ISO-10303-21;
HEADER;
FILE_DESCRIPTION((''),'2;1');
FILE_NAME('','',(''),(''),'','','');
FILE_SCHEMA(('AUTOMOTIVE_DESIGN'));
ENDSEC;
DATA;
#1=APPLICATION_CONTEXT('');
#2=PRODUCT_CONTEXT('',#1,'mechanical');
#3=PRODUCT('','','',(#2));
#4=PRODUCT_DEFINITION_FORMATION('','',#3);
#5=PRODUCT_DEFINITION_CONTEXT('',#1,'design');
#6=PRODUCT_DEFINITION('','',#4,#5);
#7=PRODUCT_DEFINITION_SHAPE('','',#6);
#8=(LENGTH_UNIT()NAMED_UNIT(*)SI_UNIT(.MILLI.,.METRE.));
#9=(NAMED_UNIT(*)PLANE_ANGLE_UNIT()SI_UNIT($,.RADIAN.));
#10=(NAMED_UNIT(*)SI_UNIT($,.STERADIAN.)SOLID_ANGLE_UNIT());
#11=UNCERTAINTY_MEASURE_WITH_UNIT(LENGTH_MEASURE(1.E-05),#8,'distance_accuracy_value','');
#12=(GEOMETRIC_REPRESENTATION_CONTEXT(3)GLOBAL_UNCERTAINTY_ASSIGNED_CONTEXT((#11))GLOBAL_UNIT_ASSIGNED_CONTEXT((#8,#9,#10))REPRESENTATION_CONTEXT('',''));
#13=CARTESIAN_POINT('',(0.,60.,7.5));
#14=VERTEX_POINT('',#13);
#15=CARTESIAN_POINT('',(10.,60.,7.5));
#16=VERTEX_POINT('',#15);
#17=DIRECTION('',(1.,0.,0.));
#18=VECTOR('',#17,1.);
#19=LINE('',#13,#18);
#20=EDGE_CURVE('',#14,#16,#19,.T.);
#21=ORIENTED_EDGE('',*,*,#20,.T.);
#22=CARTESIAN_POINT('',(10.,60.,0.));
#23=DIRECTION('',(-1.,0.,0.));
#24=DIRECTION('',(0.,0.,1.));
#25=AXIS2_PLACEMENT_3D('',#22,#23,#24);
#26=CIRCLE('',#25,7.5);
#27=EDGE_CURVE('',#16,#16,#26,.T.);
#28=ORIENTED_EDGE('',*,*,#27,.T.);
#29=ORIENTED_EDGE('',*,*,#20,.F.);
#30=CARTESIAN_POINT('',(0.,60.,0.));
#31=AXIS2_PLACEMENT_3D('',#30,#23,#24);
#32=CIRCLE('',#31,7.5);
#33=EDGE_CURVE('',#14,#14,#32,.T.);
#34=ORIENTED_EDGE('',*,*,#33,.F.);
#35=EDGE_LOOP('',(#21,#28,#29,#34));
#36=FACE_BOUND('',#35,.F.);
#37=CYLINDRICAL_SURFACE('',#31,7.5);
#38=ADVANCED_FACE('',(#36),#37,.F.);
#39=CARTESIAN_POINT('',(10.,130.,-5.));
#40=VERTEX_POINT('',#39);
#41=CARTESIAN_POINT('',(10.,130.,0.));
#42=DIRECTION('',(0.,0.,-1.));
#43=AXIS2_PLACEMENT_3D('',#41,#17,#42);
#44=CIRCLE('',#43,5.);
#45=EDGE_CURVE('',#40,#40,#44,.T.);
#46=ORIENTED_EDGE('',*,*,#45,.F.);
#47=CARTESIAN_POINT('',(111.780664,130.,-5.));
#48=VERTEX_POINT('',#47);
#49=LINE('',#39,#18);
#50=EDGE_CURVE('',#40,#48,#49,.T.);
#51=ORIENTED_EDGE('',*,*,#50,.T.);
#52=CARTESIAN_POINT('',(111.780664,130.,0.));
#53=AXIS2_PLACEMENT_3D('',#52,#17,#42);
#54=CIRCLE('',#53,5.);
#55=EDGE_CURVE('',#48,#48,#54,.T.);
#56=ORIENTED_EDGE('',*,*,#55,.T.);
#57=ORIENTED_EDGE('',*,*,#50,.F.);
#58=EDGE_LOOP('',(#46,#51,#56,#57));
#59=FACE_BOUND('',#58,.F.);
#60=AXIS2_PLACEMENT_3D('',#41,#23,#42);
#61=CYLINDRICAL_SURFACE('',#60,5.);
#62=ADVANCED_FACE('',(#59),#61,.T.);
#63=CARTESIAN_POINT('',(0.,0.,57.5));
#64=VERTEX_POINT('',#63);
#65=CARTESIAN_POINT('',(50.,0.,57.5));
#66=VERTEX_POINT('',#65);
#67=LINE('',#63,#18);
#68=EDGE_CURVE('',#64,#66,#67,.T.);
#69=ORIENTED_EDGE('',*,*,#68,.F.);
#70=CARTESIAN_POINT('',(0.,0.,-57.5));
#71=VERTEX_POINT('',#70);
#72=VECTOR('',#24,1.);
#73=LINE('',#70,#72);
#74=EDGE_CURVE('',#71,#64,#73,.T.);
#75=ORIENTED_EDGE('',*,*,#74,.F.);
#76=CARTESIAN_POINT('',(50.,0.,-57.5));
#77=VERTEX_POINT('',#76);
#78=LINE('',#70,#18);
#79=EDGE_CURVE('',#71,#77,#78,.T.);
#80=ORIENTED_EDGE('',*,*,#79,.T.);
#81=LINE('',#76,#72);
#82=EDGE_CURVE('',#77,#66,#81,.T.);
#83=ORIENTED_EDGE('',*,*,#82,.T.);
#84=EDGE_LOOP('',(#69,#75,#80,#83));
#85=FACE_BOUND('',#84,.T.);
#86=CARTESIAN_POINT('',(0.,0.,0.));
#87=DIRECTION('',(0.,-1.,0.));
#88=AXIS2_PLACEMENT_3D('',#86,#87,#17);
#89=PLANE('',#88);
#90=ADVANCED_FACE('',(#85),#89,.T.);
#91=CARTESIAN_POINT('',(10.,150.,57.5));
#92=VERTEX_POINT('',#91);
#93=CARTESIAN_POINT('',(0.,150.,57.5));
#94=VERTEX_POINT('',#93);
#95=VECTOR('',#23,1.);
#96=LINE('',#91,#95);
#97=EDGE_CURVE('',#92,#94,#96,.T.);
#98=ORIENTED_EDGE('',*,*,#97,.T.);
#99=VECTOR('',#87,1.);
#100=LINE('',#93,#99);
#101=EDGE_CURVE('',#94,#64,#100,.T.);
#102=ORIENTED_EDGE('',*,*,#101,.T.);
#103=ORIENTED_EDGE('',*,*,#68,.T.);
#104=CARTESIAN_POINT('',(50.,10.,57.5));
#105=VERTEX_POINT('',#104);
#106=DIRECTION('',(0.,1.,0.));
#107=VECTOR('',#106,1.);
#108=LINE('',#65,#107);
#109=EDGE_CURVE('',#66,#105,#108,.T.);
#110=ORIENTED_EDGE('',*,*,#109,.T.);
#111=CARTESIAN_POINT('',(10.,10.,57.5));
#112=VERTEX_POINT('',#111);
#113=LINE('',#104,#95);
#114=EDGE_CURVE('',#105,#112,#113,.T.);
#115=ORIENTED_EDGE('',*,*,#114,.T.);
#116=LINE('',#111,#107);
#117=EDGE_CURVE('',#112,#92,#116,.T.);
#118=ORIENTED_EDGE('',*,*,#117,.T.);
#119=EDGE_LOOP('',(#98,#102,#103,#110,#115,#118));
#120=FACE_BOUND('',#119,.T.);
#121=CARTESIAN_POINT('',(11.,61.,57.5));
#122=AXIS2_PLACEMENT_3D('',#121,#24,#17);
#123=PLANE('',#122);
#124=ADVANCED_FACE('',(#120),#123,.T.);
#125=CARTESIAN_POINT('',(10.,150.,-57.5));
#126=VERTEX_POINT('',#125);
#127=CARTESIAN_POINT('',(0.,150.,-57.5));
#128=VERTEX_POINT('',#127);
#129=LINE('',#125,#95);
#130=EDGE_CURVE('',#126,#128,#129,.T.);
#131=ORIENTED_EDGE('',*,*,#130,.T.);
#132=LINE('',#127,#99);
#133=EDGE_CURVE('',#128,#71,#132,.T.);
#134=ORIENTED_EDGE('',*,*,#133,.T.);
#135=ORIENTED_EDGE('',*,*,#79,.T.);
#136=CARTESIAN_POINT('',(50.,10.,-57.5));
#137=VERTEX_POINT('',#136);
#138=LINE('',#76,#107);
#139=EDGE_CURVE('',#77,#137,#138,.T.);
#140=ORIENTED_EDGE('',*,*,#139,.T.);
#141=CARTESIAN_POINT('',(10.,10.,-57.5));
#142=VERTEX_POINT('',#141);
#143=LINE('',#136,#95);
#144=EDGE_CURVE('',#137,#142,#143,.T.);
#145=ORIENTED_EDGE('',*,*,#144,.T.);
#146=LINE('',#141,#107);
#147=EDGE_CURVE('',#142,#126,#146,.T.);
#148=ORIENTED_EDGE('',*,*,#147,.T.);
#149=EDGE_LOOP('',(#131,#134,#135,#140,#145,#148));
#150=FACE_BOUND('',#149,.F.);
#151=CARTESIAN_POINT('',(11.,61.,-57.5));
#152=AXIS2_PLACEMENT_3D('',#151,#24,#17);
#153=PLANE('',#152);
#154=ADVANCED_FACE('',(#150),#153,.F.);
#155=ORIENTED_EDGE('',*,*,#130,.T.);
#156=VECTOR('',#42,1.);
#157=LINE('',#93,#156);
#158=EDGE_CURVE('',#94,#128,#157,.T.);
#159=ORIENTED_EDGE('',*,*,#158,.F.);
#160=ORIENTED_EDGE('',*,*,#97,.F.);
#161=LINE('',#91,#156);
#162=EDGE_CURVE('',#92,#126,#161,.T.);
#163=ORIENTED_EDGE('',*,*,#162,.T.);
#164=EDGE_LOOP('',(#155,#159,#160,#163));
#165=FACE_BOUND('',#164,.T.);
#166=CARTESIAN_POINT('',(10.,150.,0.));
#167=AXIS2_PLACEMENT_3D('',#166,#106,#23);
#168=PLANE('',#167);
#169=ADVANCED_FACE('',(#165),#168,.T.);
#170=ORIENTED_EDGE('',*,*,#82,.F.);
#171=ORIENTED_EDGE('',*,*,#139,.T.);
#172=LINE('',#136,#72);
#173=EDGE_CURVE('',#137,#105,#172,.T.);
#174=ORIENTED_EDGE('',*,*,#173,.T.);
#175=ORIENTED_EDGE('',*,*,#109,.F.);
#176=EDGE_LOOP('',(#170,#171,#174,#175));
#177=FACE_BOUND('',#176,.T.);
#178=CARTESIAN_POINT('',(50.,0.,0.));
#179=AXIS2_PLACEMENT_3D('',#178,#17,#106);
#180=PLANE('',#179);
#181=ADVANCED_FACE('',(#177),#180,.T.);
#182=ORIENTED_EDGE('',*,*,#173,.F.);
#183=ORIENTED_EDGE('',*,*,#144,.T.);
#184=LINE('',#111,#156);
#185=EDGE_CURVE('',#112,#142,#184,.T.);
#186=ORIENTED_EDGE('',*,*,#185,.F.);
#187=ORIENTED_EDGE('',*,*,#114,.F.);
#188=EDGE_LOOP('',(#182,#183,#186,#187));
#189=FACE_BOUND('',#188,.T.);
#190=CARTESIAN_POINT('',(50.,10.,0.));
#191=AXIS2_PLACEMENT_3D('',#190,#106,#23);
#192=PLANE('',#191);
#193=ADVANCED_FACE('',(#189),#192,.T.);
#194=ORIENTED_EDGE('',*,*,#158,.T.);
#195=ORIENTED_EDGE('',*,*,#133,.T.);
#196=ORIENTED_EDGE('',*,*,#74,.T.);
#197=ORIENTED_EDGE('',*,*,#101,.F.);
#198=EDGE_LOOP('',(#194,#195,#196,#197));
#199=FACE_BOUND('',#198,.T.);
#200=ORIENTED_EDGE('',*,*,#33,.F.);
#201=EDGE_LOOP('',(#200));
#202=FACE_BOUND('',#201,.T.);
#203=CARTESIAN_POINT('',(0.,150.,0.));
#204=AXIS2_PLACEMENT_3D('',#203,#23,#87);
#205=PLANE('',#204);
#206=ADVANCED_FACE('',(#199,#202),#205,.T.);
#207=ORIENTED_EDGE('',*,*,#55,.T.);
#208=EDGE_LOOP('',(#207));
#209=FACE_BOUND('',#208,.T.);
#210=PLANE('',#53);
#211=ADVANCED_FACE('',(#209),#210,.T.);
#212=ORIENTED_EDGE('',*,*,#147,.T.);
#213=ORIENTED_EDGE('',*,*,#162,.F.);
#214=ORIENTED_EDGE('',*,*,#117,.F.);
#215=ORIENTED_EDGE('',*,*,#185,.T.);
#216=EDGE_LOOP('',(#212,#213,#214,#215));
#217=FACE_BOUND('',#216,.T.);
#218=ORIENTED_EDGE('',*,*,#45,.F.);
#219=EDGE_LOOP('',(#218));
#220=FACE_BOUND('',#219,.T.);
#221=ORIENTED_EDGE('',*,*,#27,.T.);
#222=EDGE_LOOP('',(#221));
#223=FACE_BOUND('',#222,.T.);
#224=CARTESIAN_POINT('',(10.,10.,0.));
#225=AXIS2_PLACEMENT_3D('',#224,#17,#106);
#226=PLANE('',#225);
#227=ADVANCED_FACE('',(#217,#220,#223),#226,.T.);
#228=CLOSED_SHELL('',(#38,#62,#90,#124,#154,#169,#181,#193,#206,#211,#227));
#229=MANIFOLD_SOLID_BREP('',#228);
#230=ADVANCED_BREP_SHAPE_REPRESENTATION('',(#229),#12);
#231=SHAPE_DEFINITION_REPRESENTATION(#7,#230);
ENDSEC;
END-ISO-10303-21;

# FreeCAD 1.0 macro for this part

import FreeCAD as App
import Part
import Sketcher

V = App.Vector


def add_polygon(sketch, points):
    """Adds a closed chain of lines whose ends are joined by coincident constraints."""
    first, n = sketch.GeometryCount, len(points)
    for a, b in zip(points, points[1:] + points[:1]):
        sketch.addGeometry(Part.LineSegment(App.Vector(*a, 0), App.Vector(*b, 0)), False)
    for i in range(n):
        sketch.addConstraint(Sketcher.Constraint("Coincident", first + i, 2, first + (i + 1) % n, 1))

doc = App.newDocument("Part")
body = doc.addObject("PartDesign::Body", "Body")

sketch1 = body.newObject("Sketcher::SketchObject", "Sketch")
sketch1.AttachmentSupport = (doc.getObject("XY_Plane"), [""])
sketch1.MapMode = "FlatFace"
add_polygon(sketch1, [(0, 150), (0, 0), (50, 0), (50, 10), (10, 10), (10, 150)])
sketch1.addConstraint(Sketcher.Constraint("Vertical", 0))
sketch1.addConstraint(Sketcher.Constraint("Horizontal", 1))
sketch1.addConstraint(Sketcher.Constraint("Vertical", 2))
sketch1.addConstraint(Sketcher.Constraint("Horizontal", 3))
sketch1.addConstraint(Sketcher.Constraint("Vertical", 4))
sketch1.addConstraint(Sketcher.Constraint("Horizontal", 5))
sketch1.addConstraint(Sketcher.Constraint("Coincident", 0, 2, -1, 1))
sketch1.addConstraint(Sketcher.Constraint("Equal", 5, 2))
sketch1.addConstraint(Sketcher.Constraint("DistanceX", 1, 1, 1, 2, 50.0))
sketch1.addConstraint(Sketcher.Constraint("DistanceX", 3, 2, 3, 1, 40.0))
sketch1.addConstraint(Sketcher.Constraint("DistanceY", 0, 2, 0, 1, 150.0))
pad1 = body.newObject("PartDesign::Pad", "Pad")
pad1.Profile = sketch1
pad1.Length = 115
pad1.Midplane = True

sketch2 = body.newObject("Sketcher::SketchObject", "Sketch001")
sketch2.AttachmentSupport = (doc.getObject("YZ_Plane"), [""])
sketch2.MapMode = "FlatFace"
sketch2.addGeometry(Part.Circle(V(60, 0, 0), V(0, 0, 1), 8), False)
sketch2.addConstraint(Sketcher.Constraint("PointOnObject", 0, 3, -1))
sketch2.addConstraint(Sketcher.Constraint("Diameter", 0, 15.0))
sketch2.addConstraint(Sketcher.Constraint("DistanceX", -1, 1, 0, 3, 60.0))
pocket1 = body.newObject("PartDesign::Pocket", "Pocket")
pocket1.Profile = sketch2
pocket1.Type = "ThroughAll"
pocket1.Reversed = True

sketch3 = body.newObject("Sketcher::SketchObject", "Sketch002")
sketch3.AttachmentSupport = (doc.getObject("YZ_Plane"), [""])
sketch3.MapMode = "FlatFace"
sketch3.AttachmentOffset = App.Placement(V(0, 0, 10), App.Rotation())
sketch3.addGeometry(Part.Circle(V(130, 0, 0), V(0, 0, 1), 5), False)
sketch3.addConstraint(Sketcher.Constraint("PointOnObject", 0, 3, -1))
sketch3.addConstraint(Sketcher.Constraint("Diameter", 0, 10.0))
sketch3.addConstraint(Sketcher.Constraint("DistanceX", -1, 1, 0, 3, 130.0))
pad2 = body.newObject("PartDesign::Pad", "Pad001")
pad2.Profile = sketch3
pad2.Length = 101.780664

doc.recompute()
